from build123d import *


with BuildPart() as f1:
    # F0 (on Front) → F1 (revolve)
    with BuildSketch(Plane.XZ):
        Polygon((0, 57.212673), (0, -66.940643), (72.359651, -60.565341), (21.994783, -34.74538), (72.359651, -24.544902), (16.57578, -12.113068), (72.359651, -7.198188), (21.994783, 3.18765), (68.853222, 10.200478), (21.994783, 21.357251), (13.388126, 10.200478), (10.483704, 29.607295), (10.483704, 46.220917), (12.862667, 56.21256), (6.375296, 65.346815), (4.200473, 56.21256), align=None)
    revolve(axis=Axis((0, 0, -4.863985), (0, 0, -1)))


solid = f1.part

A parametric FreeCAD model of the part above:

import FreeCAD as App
import Part
import Sketcher

V = App.Vector
Q = App.Units.Quantity


def add_polygon(sketch, points):
    """Adds a closed chain of lines whose ends are joined by coincident constraints."""
    first, n = sketch.GeometryCount, len(points)
    for a, b in zip(points, points[1:] + points[:1]):
        sketch.addGeometry(Part.LineSegment(App.Vector(*a, 0), App.Vector(*b, 0)), False)
    for i in range(n):
        sketch.addConstraint(Sketcher.Constraint("Coincident", first + i, 2, first + (i + 1) % n, 1))

doc = App.newDocument("Part")
params = doc.addObject("Spreadsheet::Sheet", "Params")
for row, (alias, value) in enumerate([
    ("revolution_angle", "360 deg"),
], start=1):
    params.set(f"A{row}", alias)
    params.set(f"B{row}", "=" + value)
    params.setAlias(f"B{row}", alias)

body = doc.addObject("PartDesign::Body", "Body")

sketch1 = body.newObject("Sketcher::SketchObject", "Sketch")
sketch1.AttachmentSupport = (doc.getObject("XZ_Plane"), [""])
sketch1.MapMode = "FlatFace"
add_polygon(sketch1, [(0, 57.2), (0, -66.9), (72.4, -60.6), (22, -34.7), (72.4, -24.5), (16.6, -12.1), (72.4, -7.2), (22, 3.2), (68.9, 10.2), (22, 21.4), (13.4, 10.2), (10.5, 29.6), (10.5, 46.2), (12.9, 56.2), (6.4, 65.3), (4.2, 56.2)])
sketch1.addConstraint([
    Sketcher.Constraint("Vertical", 0),
    Sketcher.Constraint("Vertical", 11),
    Sketcher.Constraint("PointOnObject", 0, 2, -2),
    Sketcher.Constraint("Parallel", 1, 5),
    Sketcher.Constraint("Perpendicular", 7, 10),
    Sketcher.Constraint("Perpendicular", 8, 12),
    Sketcher.Constraint("Parallel", 12, 14),
    Sketcher.Constraint("Perpendicular", 14, 15),
    Sketcher.Constraint("Horizontal", 7, 2, 9, 2),
    Sketcher.Constraint("Horizontal", 12, 2, 14, 2),
    Sketcher.Constraint("Vertical", 1, 2, 3, 2),
    Sketcher.Constraint("Vertical", 3, 2, 5, 2),
    Sketcher.Constraint("Vertical", 2, 2, 6, 2),
    Sketcher.Constraint("Vertical", 6, 2, 8, 2),
    Sketcher.Constraint("DistanceY", 11, 1, 11, 2, Q("16.613622 mm")),
    Sketcher.Constraint("DistanceY", 0, 2, 1, 2, Q("6.375302 mm")),
    Sketcher.Constraint("DistanceY", 6, 2, 8, 2, Q("18.169601 mm")),
    Sketcher.Constraint("DistanceY", 11, 2, 13, 2, Q("19.125898 mm")),
    Sketcher.Constraint("Distance", 1, Q("72.639958 mm")),
    Sketcher.Constraint("Distance", 6, Q("51.424562 mm")),
    Sketcher.Constraint("Distance", 8, Q("48.168318 mm")),
    Sketcher.Constraint("Distance", 9, Q("14.090711 mm")),
    Sketcher.Constraint("Distance", 10, Q("19.622951 mm")),
    Sketcher.Constraint("Distance", 12, Q("10.270949 mm")),
    Sketcher.Constraint("DistanceY", 0, 2, 0, 1, Q("124.153316 mm")),
    Sketcher.Constraint("DistanceY", 1, 2, -1, 1, Q("60.565341 mm")),
    Sketcher.Constraint("DistanceY", 2, 2, -1, 1, Q("34.74538 mm")),
    Sketcher.Constraint("DistanceX", -1, 1, 4, 2, Q("16.57578 mm")),
    Sketcher.Constraint("DistanceY", -1, 1, 6, 2, Q("3.18765 mm")),
    Sketcher.Constraint("DistanceY", -1, 1, 12, 2, Q("56.21256 mm")),
    Sketcher.Constraint("DistanceY", 1, 2, 3, 2, Q("36.020439 mm")),
    Sketcher.Constraint("DistanceY", 2, 2, 4, 2, Q("22.632312 mm")),
])
revolution = body.newObject("PartDesign::Revolution", "Revolution")
revolution.Profile = sketch1
revolution.ReferenceAxis = (sketch1, ["V_Axis"])
revolution.setExpression("Angle", "Params.revolution_angle")

doc.recompute()
